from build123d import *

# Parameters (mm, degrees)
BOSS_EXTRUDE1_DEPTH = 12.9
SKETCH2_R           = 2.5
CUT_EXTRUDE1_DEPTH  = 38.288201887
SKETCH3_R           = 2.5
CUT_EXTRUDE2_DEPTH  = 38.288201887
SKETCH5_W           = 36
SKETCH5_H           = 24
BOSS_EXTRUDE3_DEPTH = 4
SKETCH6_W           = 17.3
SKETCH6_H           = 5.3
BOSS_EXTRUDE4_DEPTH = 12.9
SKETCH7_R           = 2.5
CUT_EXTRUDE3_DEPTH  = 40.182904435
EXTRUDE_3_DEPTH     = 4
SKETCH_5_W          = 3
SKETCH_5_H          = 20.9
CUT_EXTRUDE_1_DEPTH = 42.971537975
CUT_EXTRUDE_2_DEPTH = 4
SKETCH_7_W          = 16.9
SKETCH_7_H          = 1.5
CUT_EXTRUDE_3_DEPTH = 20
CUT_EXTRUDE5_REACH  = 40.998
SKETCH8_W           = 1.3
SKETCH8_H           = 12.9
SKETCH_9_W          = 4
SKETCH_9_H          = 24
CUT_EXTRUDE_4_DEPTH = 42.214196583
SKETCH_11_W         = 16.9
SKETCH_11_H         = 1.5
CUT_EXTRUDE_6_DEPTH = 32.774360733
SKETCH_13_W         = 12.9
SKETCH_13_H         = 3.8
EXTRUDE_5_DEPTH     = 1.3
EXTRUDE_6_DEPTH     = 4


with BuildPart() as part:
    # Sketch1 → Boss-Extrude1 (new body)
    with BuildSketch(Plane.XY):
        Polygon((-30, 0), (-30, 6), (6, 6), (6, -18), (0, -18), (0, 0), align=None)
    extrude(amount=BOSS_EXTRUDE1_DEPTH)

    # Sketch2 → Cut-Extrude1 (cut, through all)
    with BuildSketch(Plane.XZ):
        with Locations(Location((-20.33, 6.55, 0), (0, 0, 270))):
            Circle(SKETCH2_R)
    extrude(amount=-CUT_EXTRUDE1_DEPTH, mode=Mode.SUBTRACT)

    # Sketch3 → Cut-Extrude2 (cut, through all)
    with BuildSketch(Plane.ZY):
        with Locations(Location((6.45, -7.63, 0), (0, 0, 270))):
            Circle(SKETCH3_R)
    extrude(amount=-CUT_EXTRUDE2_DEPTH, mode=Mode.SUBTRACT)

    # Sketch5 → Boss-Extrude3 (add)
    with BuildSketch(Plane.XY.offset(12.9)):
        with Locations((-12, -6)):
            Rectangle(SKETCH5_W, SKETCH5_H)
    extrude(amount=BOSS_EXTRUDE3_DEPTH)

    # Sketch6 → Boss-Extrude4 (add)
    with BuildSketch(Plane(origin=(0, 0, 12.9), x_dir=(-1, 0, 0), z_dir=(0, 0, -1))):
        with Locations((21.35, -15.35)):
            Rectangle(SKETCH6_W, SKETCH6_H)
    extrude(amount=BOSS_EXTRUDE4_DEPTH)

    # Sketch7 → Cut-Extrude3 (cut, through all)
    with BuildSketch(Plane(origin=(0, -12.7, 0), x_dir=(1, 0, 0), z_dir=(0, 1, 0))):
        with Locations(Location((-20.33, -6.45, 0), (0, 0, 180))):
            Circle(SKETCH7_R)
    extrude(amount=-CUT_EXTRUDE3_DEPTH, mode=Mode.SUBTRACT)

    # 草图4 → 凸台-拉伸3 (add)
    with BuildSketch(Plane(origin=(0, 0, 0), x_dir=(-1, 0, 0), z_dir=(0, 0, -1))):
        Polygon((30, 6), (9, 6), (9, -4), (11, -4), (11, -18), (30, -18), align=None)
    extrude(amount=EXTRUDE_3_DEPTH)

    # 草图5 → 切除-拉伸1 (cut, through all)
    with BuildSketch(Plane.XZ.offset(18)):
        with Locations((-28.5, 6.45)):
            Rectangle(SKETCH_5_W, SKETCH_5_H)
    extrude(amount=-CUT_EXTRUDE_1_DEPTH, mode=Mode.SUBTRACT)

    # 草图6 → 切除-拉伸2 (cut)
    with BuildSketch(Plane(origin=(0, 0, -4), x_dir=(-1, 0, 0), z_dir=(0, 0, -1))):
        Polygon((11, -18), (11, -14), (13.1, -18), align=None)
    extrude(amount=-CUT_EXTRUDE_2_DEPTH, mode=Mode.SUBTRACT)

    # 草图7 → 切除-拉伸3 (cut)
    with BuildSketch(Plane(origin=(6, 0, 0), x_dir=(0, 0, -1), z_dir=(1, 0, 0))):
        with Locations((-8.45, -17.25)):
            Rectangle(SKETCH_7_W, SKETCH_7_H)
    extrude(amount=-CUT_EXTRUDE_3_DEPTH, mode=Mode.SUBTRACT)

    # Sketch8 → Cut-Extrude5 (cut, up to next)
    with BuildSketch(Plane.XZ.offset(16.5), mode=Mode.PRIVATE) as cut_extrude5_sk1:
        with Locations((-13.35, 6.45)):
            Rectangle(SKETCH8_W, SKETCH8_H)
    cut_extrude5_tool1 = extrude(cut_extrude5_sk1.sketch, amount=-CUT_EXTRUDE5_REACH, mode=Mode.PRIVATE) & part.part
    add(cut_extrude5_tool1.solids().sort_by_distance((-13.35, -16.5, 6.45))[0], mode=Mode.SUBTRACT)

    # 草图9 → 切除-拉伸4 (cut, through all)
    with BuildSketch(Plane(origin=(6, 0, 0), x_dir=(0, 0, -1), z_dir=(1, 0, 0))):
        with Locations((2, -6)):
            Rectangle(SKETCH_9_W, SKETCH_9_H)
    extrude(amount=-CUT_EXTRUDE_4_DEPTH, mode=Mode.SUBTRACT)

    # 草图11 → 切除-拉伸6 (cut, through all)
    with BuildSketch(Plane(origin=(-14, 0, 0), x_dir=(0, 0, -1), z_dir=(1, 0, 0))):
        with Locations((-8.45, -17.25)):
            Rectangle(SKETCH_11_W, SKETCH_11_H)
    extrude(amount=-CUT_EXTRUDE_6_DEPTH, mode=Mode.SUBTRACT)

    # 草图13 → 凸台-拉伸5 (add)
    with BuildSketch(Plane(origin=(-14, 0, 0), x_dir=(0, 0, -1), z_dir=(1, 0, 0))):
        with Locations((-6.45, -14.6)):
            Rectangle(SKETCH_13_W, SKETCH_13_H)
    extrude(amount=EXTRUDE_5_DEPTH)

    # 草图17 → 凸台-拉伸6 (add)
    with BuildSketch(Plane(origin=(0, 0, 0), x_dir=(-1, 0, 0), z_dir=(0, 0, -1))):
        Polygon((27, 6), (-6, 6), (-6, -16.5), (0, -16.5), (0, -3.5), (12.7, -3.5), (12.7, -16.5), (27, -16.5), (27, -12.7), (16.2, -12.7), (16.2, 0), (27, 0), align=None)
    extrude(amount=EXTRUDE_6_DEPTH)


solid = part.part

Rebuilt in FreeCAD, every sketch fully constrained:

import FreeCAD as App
import Part
import Sketcher
Q = App.Units.Quantity

doc = App.newDocument("Part")
body = doc.addObject("PartDesign::Body", "Body")

# Sketch on XY plane
sketch1 = body.newObject("Sketcher::SketchObject", "Sketch")
sketch1.AttachmentSupport = (doc.getObject("XY_Plane"), [""])
sketch1.MapMode = "FlatFace"
sketch1.addGeometry(Part.LineSegment(App.Vector(-30, 6, 0), App.Vector(-30, 0, 0)), False)
sketch1.addGeometry(Part.LineSegment(App.Vector(-30, 0, 0), App.Vector(0, 0, 0)), False)
sketch1.addGeometry(Part.LineSegment(App.Vector(0, 0, 0), App.Vector(0, -18, 0)), False)
sketch1.addGeometry(Part.LineSegment(App.Vector(0, -18, 0), App.Vector(6, -18, 0)), False)
sketch1.addGeometry(Part.LineSegment(App.Vector(6, -18, 0), App.Vector(6, 6, 0)), False)
sketch1.addGeometry(Part.LineSegment(App.Vector(6, 6, 0), App.Vector(-30, 6, 0)), False)
sketch1.addConstraint(Sketcher.Constraint("Coincident", 0, 2, 1, 1))
sketch1.addConstraint(Sketcher.Constraint("Coincident", 1, 2, 2, 1))
sketch1.addConstraint(Sketcher.Constraint("Coincident", 2, 2, 3, 1))
sketch1.addConstraint(Sketcher.Constraint("Coincident", 3, 2, 4, 1))
sketch1.addConstraint(Sketcher.Constraint("Coincident", 4, 2, 5, 1))
sketch1.addConstraint(Sketcher.Constraint("Coincident", 5, 2, 0, 1))
sketch1.addConstraint(Sketcher.Constraint("Vertical", 0))
sketch1.addConstraint(Sketcher.Constraint("Horizontal", 1))
sketch1.addConstraint(Sketcher.Constraint("Vertical", 2))
sketch1.addConstraint(Sketcher.Constraint("Horizontal", 3))
sketch1.addConstraint(Sketcher.Constraint("Vertical", 4))
sketch1.addConstraint(Sketcher.Constraint("Horizontal", 5))
sketch1.addConstraint(Sketcher.Constraint("Coincident", 1, 2, -1, 1))
sketch1.addConstraint(Sketcher.Constraint("Equal", 3, 0))
sketch1.addConstraint(Sketcher.Constraint("DistanceX", 1, 1, 1, 2, Q("30 mm")))
sketch1.addConstraint(Sketcher.Constraint("DistanceX", 3, 1, 3, 2, Q("6 mm")))
sketch1.addConstraint(Sketcher.Constraint("DistanceY", 2, 2, 2, 1, Q("18 mm")))
pad1 = body.newObject("PartDesign::Pad", "Pad")
pad1.Profile = sketch1
pad1.Length = 12.9

# Sketch on XZ plane
sketch2 = body.newObject("Sketcher::SketchObject", "Sketch001")
sketch2.AttachmentSupport = (doc.getObject("XZ_Plane"), [""])
sketch2.MapMode = "FlatFace"
sketch2.addGeometry(Part.Circle(App.Vector(-20.33, 6.55, 0), App.Vector(0, 0, 1), 2.5), False)
sketch2.addConstraint(Sketcher.Constraint("Diameter", 0, Q("5 mm")))
sketch2.addConstraint(Sketcher.Constraint("DistanceX", 0, 3, -1, 1, Q("20.33 mm")))
sketch2.addConstraint(Sketcher.Constraint("DistanceY", -1, 1, 0, 3, Q("6.55 mm")))
pocket1 = body.newObject("PartDesign::Pocket", "Pocket")
pocket1.Profile = sketch2
pocket1.Type = "ThroughAll"

# Sketch on YZ plane
sketch3 = body.newObject("Sketcher::SketchObject", "Sketch002")
sketch3.AttachmentSupport = (doc.getObject("YZ_Plane"), [""])
sketch3.MapMode = "FlatFace"
sketch3.addGeometry(Part.Circle(App.Vector(-7.63, 6.45, 0), App.Vector(0, 0, 1), 2.5), False)
sketch3.addConstraint(Sketcher.Constraint("Diameter", 0, Q("5 mm")))
sketch3.addConstraint(Sketcher.Constraint("DistanceX", 0, 3, -1, 1, Q("7.63 mm")))
sketch3.addConstraint(Sketcher.Constraint("DistanceY", -1, 1, 0, 3, Q("6.45 mm")))
pocket2 = body.newObject("PartDesign::Pocket", "Pocket001")
pocket2.Profile = sketch3
pocket2.Type = "ThroughAll"
pocket2.Reversed = True

# Sketch on XY plane
sketch4 = body.newObject("Sketcher::SketchObject", "Sketch003")
sketch4.AttachmentSupport = (doc.getObject("XY_Plane"), [""])
sketch4.MapMode = "FlatFace"
sketch4.AttachmentOffset = App.Placement(App.Vector(0, 0, 12.9), App.Rotation())
sketch4.addGeometry(Part.LineSegment(App.Vector(-30, 6, 0), App.Vector(-30, -18, 0)), False)
sketch4.addGeometry(Part.LineSegment(App.Vector(-30, -18, 0), App.Vector(6, -18, 0)), False)
sketch4.addGeometry(Part.LineSegment(App.Vector(6, -18, 0), App.Vector(6, 6, 0)), False)
sketch4.addGeometry(Part.LineSegment(App.Vector(6, 6, 0), App.Vector(-30, 6, 0)), False)
sketch4.addConstraint(Sketcher.Constraint("Coincident", 0, 2, 1, 1))
sketch4.addConstraint(Sketcher.Constraint("Coincident", 1, 2, 2, 1))
sketch4.addConstraint(Sketcher.Constraint("Coincident", 2, 2, 3, 1))
sketch4.addConstraint(Sketcher.Constraint("Coincident", 3, 2, 0, 1))
sketch4.addConstraint(Sketcher.Constraint("Vertical", 0))
sketch4.addConstraint(Sketcher.Constraint("Horizontal", 1))
sketch4.addConstraint(Sketcher.Constraint("Vertical", 2))
sketch4.addConstraint(Sketcher.Constraint("Horizontal", 3))
sketch4.addConstraint(Sketcher.Constraint("DistanceX", 1, 1, 1, 2, Q("36 mm")))
sketch4.addConstraint(Sketcher.Constraint("DistanceY", 0, 2, 0, 1, Q("24 mm")))
sketch4.addConstraint(Sketcher.Constraint("DistanceX", 0, 2, -1, 1, Q("30 mm")))
sketch4.addConstraint(Sketcher.Constraint("DistanceY", 0, 2, -1, 1, Q("18 mm")))
pad2 = body.newObject("PartDesign::Pad", "Pad001")
pad2.Profile = sketch4
pad2.Length = 4

# Sketch on XY plane
sketch5 = body.newObject("Sketcher::SketchObject", "Sketch004")
sketch5.AttachmentSupport = (doc.getObject("XY_Plane"), [""])
sketch5.MapMode = "FlatFace"
sketch5.AttachmentOffset = App.Placement(App.Vector(0, 0, 12.9), App.Rotation())
sketch5.addGeometry(Part.LineSegment(App.Vector(-12.7, -12.7, 0), App.Vector(-12.7, -18, 0)), False)
sketch5.addGeometry(Part.LineSegment(App.Vector(-12.7, -18, 0), App.Vector(-30, -18, 0)), False)
sketch5.addGeometry(Part.LineSegment(App.Vector(-30, -18, 0), App.Vector(-30, -12.7, 0)), False)
sketch5.addGeometry(Part.LineSegment(App.Vector(-30, -12.7, 0), App.Vector(-12.7, -12.7, 0)), False)
sketch5.addConstraint(Sketcher.Constraint("Coincident", 0, 2, 1, 1))
sketch5.addConstraint(Sketcher.Constraint("Coincident", 1, 2, 2, 1))
sketch5.addConstraint(Sketcher.Constraint("Coincident", 2, 2, 3, 1))
sketch5.addConstraint(Sketcher.Constraint("Coincident", 3, 2, 0, 1))
sketch5.addConstraint(Sketcher.Constraint("Vertical", 0))
sketch5.addConstraint(Sketcher.Constraint("Horizontal", 1))
sketch5.addConstraint(Sketcher.Constraint("Vertical", 2))
sketch5.addConstraint(Sketcher.Constraint("Horizontal", 3))
sketch5.addConstraint(Sketcher.Constraint("DistanceX", 1, 2, 1, 1, Q("17.3 mm")))
sketch5.addConstraint(Sketcher.Constraint("DistanceY", 0, 2, 0, 1, Q("5.3 mm")))
sketch5.addConstraint(Sketcher.Constraint("DistanceY", 0, 2, -1, 1, Q("18 mm")))
sketch5.addConstraint(Sketcher.Constraint("DistanceX", 1, 2, -1, 1, Q("30 mm")))
pad3 = body.newObject("PartDesign::Pad", "Pad002")
pad3.Profile = sketch5
pad3.Length = 12.9
pad3.Reversed = True

# Sketch on XZ plane
sketch6 = body.newObject("Sketcher::SketchObject", "Sketch005")
sketch6.AttachmentSupport = (doc.getObject("XZ_Plane"), [""])
sketch6.MapMode = "FlatFace"
sketch6.AttachmentOffset = App.Placement(App.Vector(0, 0, 12.7), App.Rotation())
sketch6.addGeometry(Part.Circle(App.Vector(-20.33, 6.45, 0), App.Vector(0, 0, 1), 2.5), False)
sketch6.addConstraint(Sketcher.Constraint("Diameter", 0, Q("5 mm")))
sketch6.addConstraint(Sketcher.Constraint("DistanceX", 0, 3, -1, 1, Q("20.33 mm")))
sketch6.addConstraint(Sketcher.Constraint("DistanceY", -1, 1, 0, 3, Q("6.45 mm")))
pocket3 = body.newObject("PartDesign::Pocket", "Pocket002")
pocket3.Profile = sketch6
pocket3.Type = "ThroughAll"
pocket3.Reversed = True

# Sketch on XY plane
sketch7 = body.newObject("Sketcher::SketchObject", "Sketch006")
sketch7.AttachmentSupport = (doc.getObject("XY_Plane"), [""])
sketch7.MapMode = "FlatFace"
sketch7.addGeometry(Part.LineSegment(App.Vector(-30, 6, 0), App.Vector(-9, 6, 0)), False)
sketch7.addGeometry(Part.LineSegment(App.Vector(-9, 6, 0), App.Vector(-9, -4, 0)), False)
sketch7.addGeometry(Part.LineSegment(App.Vector(-9, -4, 0), App.Vector(-11, -4, 0)), False)
sketch7.addGeometry(Part.LineSegment(App.Vector(-11, -4, 0), App.Vector(-11, -18, 0)), False)
sketch7.addGeometry(Part.LineSegment(App.Vector(-11, -18, 0), App.Vector(-30, -18, 0)), False)
sketch7.addGeometry(Part.LineSegment(App.Vector(-30, -18, 0), App.Vector(-30, 6, 0)), False)
sketch7.addConstraint(Sketcher.Constraint("Coincident", 0, 2, 1, 1))
sketch7.addConstraint(Sketcher.Constraint("Coincident", 1, 2, 2, 1))
sketch7.addConstraint(Sketcher.Constraint("Coincident", 2, 2, 3, 1))
sketch7.addConstraint(Sketcher.Constraint("Coincident", 3, 2, 4, 1))
sketch7.addConstraint(Sketcher.Constraint("Coincident", 4, 2, 5, 1))
sketch7.addConstraint(Sketcher.Constraint("Coincident", 5, 2, 0, 1))
sketch7.addConstraint(Sketcher.Constraint("Horizontal", 0))
sketch7.addConstraint(Sketcher.Constraint("Vertical", 1))
sketch7.addConstraint(Sketcher.Constraint("Horizontal", 2))
sketch7.addConstraint(Sketcher.Constraint("Vertical", 3))
sketch7.addConstraint(Sketcher.Constraint("Horizontal", 4))
sketch7.addConstraint(Sketcher.Constraint("Vertical", 5))
sketch7.addConstraint(Sketcher.Constraint("DistanceX", 0, 1, 0, 2, Q("21 mm")))
sketch7.addConstraint(Sketcher.Constraint("DistanceX", 2, 2, 2, 1, Q("2 mm")))
sketch7.addConstraint(Sketcher.Constraint("DistanceY", 1, 2, 1, 1, Q("10 mm")))
sketch7.addConstraint(Sketcher.Constraint("DistanceY", 3, 2, 3, 1, Q("14 mm")))
sketch7.addConstraint(Sketcher.Constraint("DistanceX", 0, 2, -1, 1, Q("9 mm")))
sketch7.addConstraint(Sketcher.Constraint("DistanceY", -1, 1, 0, 2, Q("6 mm")))
pad4 = body.newObject("PartDesign::Pad", "Pad003")
pad4.Profile = sketch7
pad4.Length = 4
pad4.Reversed = True

# Sketch on XZ plane
sketch8 = body.newObject("Sketcher::SketchObject", "Sketch007")
sketch8.AttachmentSupport = (doc.getObject("XZ_Plane"), [""])
sketch8.MapMode = "FlatFace"
sketch8.AttachmentOffset = App.Placement(App.Vector(0, 0, 18), App.Rotation())
sketch8.addGeometry(Part.LineSegment(App.Vector(-30, 16.9, 0), App.Vector(-30, -4, 0)), False)
sketch8.addGeometry(Part.LineSegment(App.Vector(-30, -4, 0), App.Vector(-27, -4, 0)), False)
sketch8.addGeometry(Part.LineSegment(App.Vector(-27, -4, 0), App.Vector(-27, 16.9, 0)), False)
sketch8.addGeometry(Part.LineSegment(App.Vector(-27, 16.9, 0), App.Vector(-30, 16.9, 0)), False)
sketch8.addConstraint(Sketcher.Constraint("Coincident", 0, 2, 1, 1))
sketch8.addConstraint(Sketcher.Constraint("Coincident", 1, 2, 2, 1))
sketch8.addConstraint(Sketcher.Constraint("Coincident", 2, 2, 3, 1))
sketch8.addConstraint(Sketcher.Constraint("Coincident", 3, 2, 0, 1))
sketch8.addConstraint(Sketcher.Constraint("Vertical", 0))
sketch8.addConstraint(Sketcher.Constraint("Horizontal", 1))
sketch8.addConstraint(Sketcher.Constraint("Vertical", 2))
sketch8.addConstraint(Sketcher.Constraint("Horizontal", 3))
sketch8.addConstraint(Sketcher.Constraint("DistanceX", 1, 1, 1, 2, Q("3 mm")))
sketch8.addConstraint(Sketcher.Constraint("DistanceY", 0, 2, 0, 1, Q("20.9 mm")))
sketch8.addConstraint(Sketcher.Constraint("DistanceX", 0, 2, -1, 1, Q("30 mm")))
sketch8.addConstraint(Sketcher.Constraint("DistanceY", 0, 2, -1, 1, Q("4 mm")))
pocket4 = body.newObject("PartDesign::Pocket", "Pocket003")
pocket4.Profile = sketch8
pocket4.Type = "ThroughAll"

# Sketch on XY plane
sketch9 = body.newObject("Sketcher::SketchObject", "Sketch008")
sketch9.AttachmentSupport = (doc.getObject("XY_Plane"), [""])
sketch9.MapMode = "FlatFace"
sketch9.AttachmentOffset = App.Placement(App.Vector(0, 0, -4), App.Rotation())
sketch9.addGeometry(Part.LineSegment(App.Vector(-11, -14, 0), App.Vector(-11, -18, 0)), False)
sketch9.addGeometry(Part.LineSegment(App.Vector(-11, -18, 0), App.Vector(-13.1, -18, 0)), False)
sketch9.addGeometry(Part.LineSegment(App.Vector(-13.1, -18, 0), App.Vector(-11, -14, 0)), False)
sketch9.addConstraint(Sketcher.Constraint("Coincident", 0, 2, 1, 1))
sketch9.addConstraint(Sketcher.Constraint("Coincident", 1, 2, 2, 1))
sketch9.addConstraint(Sketcher.Constraint("Coincident", 2, 2, 0, 1))
sketch9.addConstraint(Sketcher.Constraint("Vertical", 0))
sketch9.addConstraint(Sketcher.Constraint("Horizontal", 1))
sketch9.addConstraint(Sketcher.Constraint("DistanceY", 0, 2, 0, 1, Q("4 mm")))
sketch9.addConstraint(Sketcher.Constraint("DistanceX", 1, 2, 1, 1, Q("2.1 mm")))
sketch9.addConstraint(Sketcher.Constraint("DistanceX", 0, 2, -1, 1, Q("11 mm")))
sketch9.addConstraint(Sketcher.Constraint("DistanceY", 0, 2, -1, 1, Q("18 mm")))
pocket5 = body.newObject("PartDesign::Pocket", "Pocket004")
pocket5.Profile = sketch9
pocket5.Length = 4
pocket5.Reversed = True

# Sketch on YZ plane
sketch10 = body.newObject("Sketcher::SketchObject", "Sketch009")
sketch10.AttachmentSupport = (doc.getObject("YZ_Plane"), [""])
sketch10.MapMode = "FlatFace"
sketch10.AttachmentOffset = App.Placement(App.Vector(0, 0, 6), App.Rotation())
sketch10.addGeometry(Part.LineSegment(App.Vector(-16.5, 16.9, 0), App.Vector(-18, 16.9, 0)), False)
sketch10.addGeometry(Part.LineSegment(App.Vector(-18, 16.9, 0), App.Vector(-18, 0, 0)), False)
sketch10.addGeometry(Part.LineSegment(App.Vector(-18, 0, 0), App.Vector(-16.5, 0, 0)), False)
sketch10.addGeometry(Part.LineSegment(App.Vector(-16.5, 0, 0), App.Vector(-16.5, 16.9, 0)), False)
sketch10.addConstraint(Sketcher.Constraint("Coincident", 0, 2, 1, 1))
sketch10.addConstraint(Sketcher.Constraint("Coincident", 1, 2, 2, 1))
sketch10.addConstraint(Sketcher.Constraint("Coincident", 2, 2, 3, 1))
sketch10.addConstraint(Sketcher.Constraint("Coincident", 3, 2, 0, 1))
sketch10.addConstraint(Sketcher.Constraint("Horizontal", 0))
sketch10.addConstraint(Sketcher.Constraint("Vertical", 1))
sketch10.addConstraint(Sketcher.Constraint("Horizontal", 2))
sketch10.addConstraint(Sketcher.Constraint("Vertical", 3))
sketch10.addConstraint(Sketcher.Constraint("PointOnObject", 1, 2, -1))
sketch10.addConstraint(Sketcher.Constraint("DistanceX", 0, 2, 0, 1, Q("1.5 mm")))
sketch10.addConstraint(Sketcher.Constraint("DistanceY", 1, 2, 1, 1, Q("16.9 mm")))
sketch10.addConstraint(Sketcher.Constraint("DistanceX", 0, 2, -1, 1, Q("18 mm")))
pocket6 = body.newObject("PartDesign::Pocket", "Pocket005")
pocket6.Profile = sketch10
pocket6.Length = 20

# Sketch on XZ plane
sketch11 = body.newObject("Sketcher::SketchObject", "Sketch010")
sketch11.AttachmentSupport = (doc.getObject("XZ_Plane"), [""])
sketch11.MapMode = "FlatFace"
sketch11.AttachmentOffset = App.Placement(App.Vector(0, 0, 16.5), App.Rotation())
sketch11.addGeometry(Part.LineSegment(App.Vector(-14, 12.9, 0), App.Vector(-14, 0, 0)), False)
sketch11.addGeometry(Part.LineSegment(App.Vector(-14, 0, 0), App.Vector(-12.7, 0, 0)), False)
sketch11.addGeometry(Part.LineSegment(App.Vector(-12.7, 0, 0), App.Vector(-12.7, 12.9, 0)), False)
sketch11.addGeometry(Part.LineSegment(App.Vector(-12.7, 12.9, 0), App.Vector(-14, 12.9, 0)), False)
sketch11.addConstraint(Sketcher.Constraint("Coincident", 0, 2, 1, 1))
sketch11.addConstraint(Sketcher.Constraint("Coincident", 1, 2, 2, 1))
sketch11.addConstraint(Sketcher.Constraint("Coincident", 2, 2, 3, 1))
sketch11.addConstraint(Sketcher.Constraint("Coincident", 3, 2, 0, 1))
sketch11.addConstraint(Sketcher.Constraint("Vertical", 0))
sketch11.addConstraint(Sketcher.Constraint("Horizontal", 1))
sketch11.addConstraint(Sketcher.Constraint("Vertical", 2))
sketch11.addConstraint(Sketcher.Constraint("Horizontal", 3))
sketch11.addConstraint(Sketcher.Constraint("PointOnObject", 0, 2, -1))
sketch11.addConstraint(Sketcher.Constraint("DistanceX", 1, 1, 1, 2, Q("1.3 mm")))
sketch11.addConstraint(Sketcher.Constraint("DistanceY", 0, 2, 0, 1, Q("12.9 mm")))
sketch11.addConstraint(Sketcher.Constraint("DistanceX", 0, 2, -1, 1, Q("14 mm")))
pocket7 = body.newObject("PartDesign::Pocket", "Pocket006")
pocket7.Profile = sketch11
pocket7.Type = "UpToFirst"

# Sketch on YZ plane
sketch12 = body.newObject("Sketcher::SketchObject", "Sketch011")
sketch12.AttachmentSupport = (doc.getObject("YZ_Plane"), [""])
sketch12.MapMode = "FlatFace"
sketch12.AttachmentOffset = App.Placement(App.Vector(0, 0, 6), App.Rotation())
sketch12.addGeometry(Part.LineSegment(App.Vector(6, 0, 0), App.Vector(-18, 0, 0)), False)
sketch12.addGeometry(Part.LineSegment(App.Vector(-18, 0, 0), App.Vector(-18, -4, 0)), False)
sketch12.addGeometry(Part.LineSegment(App.Vector(-18, -4, 0), App.Vector(6, -4, 0)), False)
sketch12.addGeometry(Part.LineSegment(App.Vector(6, -4, 0), App.Vector(6, 0, 0)), False)
sketch12.addConstraint(Sketcher.Constraint("Coincident", 0, 2, 1, 1))
sketch12.addConstraint(Sketcher.Constraint("Coincident", 1, 2, 2, 1))
sketch12.addConstraint(Sketcher.Constraint("Coincident", 2, 2, 3, 1))
sketch12.addConstraint(Sketcher.Constraint("Coincident", 3, 2, 0, 1))
sketch12.addConstraint(Sketcher.Constraint("Horizontal", 0))
sketch12.addConstraint(Sketcher.Constraint("Vertical", 1))
sketch12.addConstraint(Sketcher.Constraint("Horizontal", 2))
sketch12.addConstraint(Sketcher.Constraint("Vertical", 3))
sketch12.addConstraint(Sketcher.Constraint("PointOnObject", 0, 2, -1))
sketch12.addConstraint(Sketcher.Constraint("DistanceX", 0, 2, 0, 1, Q("24 mm")))
sketch12.addConstraint(Sketcher.Constraint("DistanceY", 1, 2, 1, 1, Q("4 mm")))
sketch12.addConstraint(Sketcher.Constraint("DistanceX", 0, 2, -1, 1, Q("18 mm")))
pocket8 = body.newObject("PartDesign::Pocket", "Pocket007")
pocket8.Profile = sketch12
pocket8.Type = "ThroughAll"

# Sketch on YZ plane
sketch13 = body.newObject("Sketcher::SketchObject", "Sketch012")
sketch13.AttachmentSupport = (doc.getObject("YZ_Plane"), [""])
sketch13.MapMode = "FlatFace"
sketch13.AttachmentOffset = App.Placement(App.Vector(0, 0, -14), App.Rotation())
sketch13.addGeometry(Part.LineSegment(App.Vector(-16.5, 16.9, 0), App.Vector(-18, 16.9, 0)), False)
sketch13.addGeometry(Part.LineSegment(App.Vector(-18, 16.9, 0), App.Vector(-18, 0, 0)), False)
sketch13.addGeometry(Part.LineSegment(App.Vector(-18, 0, 0), App.Vector(-16.5, 0, 0)), False)
sketch13.addGeometry(Part.LineSegment(App.Vector(-16.5, 0, 0), App.Vector(-16.5, 16.9, 0)), False)
sketch13.addConstraint(Sketcher.Constraint("Coincident", 0, 2, 1, 1))
sketch13.addConstraint(Sketcher.Constraint("Coincident", 1, 2, 2, 1))
sketch13.addConstraint(Sketcher.Constraint("Coincident", 2, 2, 3, 1))
sketch13.addConstraint(Sketcher.Constraint("Coincident", 3, 2, 0, 1))
sketch13.addConstraint(Sketcher.Constraint("Horizontal", 0))
sketch13.addConstraint(Sketcher.Constraint("Vertical", 1))
sketch13.addConstraint(Sketcher.Constraint("Horizontal", 2))
sketch13.addConstraint(Sketcher.Constraint("Vertical", 3))
sketch13.addConstraint(Sketcher.Constraint("PointOnObject", 1, 2, -1))
sketch13.addConstraint(Sketcher.Constraint("DistanceX", 0, 2, 0, 1, Q("1.5 mm")))
sketch13.addConstraint(Sketcher.Constraint("DistanceY", 1, 2, 1, 1, Q("16.9 mm")))
sketch13.addConstraint(Sketcher.Constraint("DistanceX", 0, 2, -1, 1, Q("18 mm")))
pocket9 = body.newObject("PartDesign::Pocket", "Pocket008")
pocket9.Profile = sketch13
pocket9.Type = "ThroughAll"

# Sketch on YZ plane
sketch14 = body.newObject("Sketcher::SketchObject", "Sketch013")
sketch14.AttachmentSupport = (doc.getObject("YZ_Plane"), [""])
sketch14.MapMode = "FlatFace"
sketch14.AttachmentOffset = App.Placement(App.Vector(0, 0, -14), App.Rotation())
sketch14.addGeometry(Part.LineSegment(App.Vector(-12.7, 12.9, 0), App.Vector(-16.5, 12.9, 0)), False)
sketch14.addGeometry(Part.LineSegment(App.Vector(-16.5, 12.9, 0), App.Vector(-16.5, 0, 0)), False)
sketch14.addGeometry(Part.LineSegment(App.Vector(-16.5, 0, 0), App.Vector(-12.7, 0, 0)), False)
sketch14.addGeometry(Part.LineSegment(App.Vector(-12.7, 0, 0), App.Vector(-12.7, 12.9, 0)), False)
sketch14.addConstraint(Sketcher.Constraint("Coincident", 0, 2, 1, 1))
sketch14.addConstraint(Sketcher.Constraint("Coincident", 1, 2, 2, 1))
sketch14.addConstraint(Sketcher.Constraint("Coincident", 2, 2, 3, 1))
sketch14.addConstraint(Sketcher.Constraint("Coincident", 3, 2, 0, 1))
sketch14.addConstraint(Sketcher.Constraint("Horizontal", 0))
sketch14.addConstraint(Sketcher.Constraint("Vertical", 1))
sketch14.addConstraint(Sketcher.Constraint("Horizontal", 2))
sketch14.addConstraint(Sketcher.Constraint("Vertical", 3))
sketch14.addConstraint(Sketcher.Constraint("PointOnObject", 1, 2, -1))
sketch14.addConstraint(Sketcher.Constraint("DistanceX", 0, 2, 0, 1, Q("3.8 mm")))
sketch14.addConstraint(Sketcher.Constraint("DistanceY", 1, 2, 1, 1, Q("12.9 mm")))
sketch14.addConstraint(Sketcher.Constraint("DistanceX", 0, 2, -1, 1, Q("16.5 mm")))
pad5 = body.newObject("PartDesign::Pad", "Pad004")
pad5.Profile = sketch14
pad5.Length = 1.3

# Sketch on XY plane
sketch15 = body.newObject("Sketcher::SketchObject", "Sketch014")
sketch15.AttachmentSupport = (doc.getObject("XY_Plane"), [""])
sketch15.MapMode = "FlatFace"
sketch15.addGeometry(Part.LineSegment(App.Vector(-27, 6, 0), App.Vector(6, 6, 0)), False)
sketch15.addGeometry(Part.LineSegment(App.Vector(6, 6, 0), App.Vector(6, -16.5, 0)), False)
sketch15.addGeometry(Part.LineSegment(App.Vector(6, -16.5, 0), App.Vector(0, -16.5, 0)), False)
sketch15.addGeometry(Part.LineSegment(App.Vector(0, -16.5, 0), App.Vector(0, -3.5, 0)), False)
sketch15.addGeometry(Part.LineSegment(App.Vector(0, -3.5, 0), App.Vector(-12.7, -3.5, 0)), False)
sketch15.addGeometry(Part.LineSegment(App.Vector(-12.7, -3.5, 0), App.Vector(-12.7, -16.5, 0)), False)
sketch15.addGeometry(Part.LineSegment(App.Vector(-12.7, -16.5, 0), App.Vector(-27, -16.5, 0)), False)
sketch15.addGeometry(Part.LineSegment(App.Vector(-27, -16.5, 0), App.Vector(-27, -12.7, 0)), False)
sketch15.addGeometry(Part.LineSegment(App.Vector(-27, -12.7, 0), App.Vector(-16.2, -12.7, 0)), False)
sketch15.addGeometry(Part.LineSegment(App.Vector(-16.2, -12.7, 0), App.Vector(-16.2, 0, 0)), False)
sketch15.addGeometry(Part.LineSegment(App.Vector(-16.2, 0, 0), App.Vector(-27, 0, 0)), False)
sketch15.addGeometry(Part.LineSegment(App.Vector(-27, 0, 0), App.Vector(-27, 6, 0)), False)
sketch15.addConstraint(Sketcher.Constraint("Coincident", 0, 2, 1, 1))
sketch15.addConstraint(Sketcher.Constraint("Coincident", 1, 2, 2, 1))
sketch15.addConstraint(Sketcher.Constraint("Coincident", 2, 2, 3, 1))
sketch15.addConstraint(Sketcher.Constraint("Coincident", 3, 2, 4, 1))
sketch15.addConstraint(Sketcher.Constraint("Coincident", 4, 2, 5, 1))
sketch15.addConstraint(Sketcher.Constraint("Coincident", 5, 2, 6, 1))
sketch15.addConstraint(Sketcher.Constraint("Coincident", 6, 2, 7, 1))
sketch15.addConstraint(Sketcher.Constraint("Coincident", 7, 2, 8, 1))
sketch15.addConstraint(Sketcher.Constraint("Coincident", 8, 2, 9, 1))
sketch15.addConstraint(Sketcher.Constraint("Coincident", 9, 2, 10, 1))
sketch15.addConstraint(Sketcher.Constraint("Coincident", 10, 2, 11, 1))
sketch15.addConstraint(Sketcher.Constraint("Coincident", 11, 2, 0, 1))
sketch15.addConstraint(Sketcher.Constraint("Horizontal", 0))
sketch15.addConstraint(Sketcher.Constraint("Vertical", 1))
sketch15.addConstraint(Sketcher.Constraint("Horizontal", 2))
sketch15.addConstraint(Sketcher.Constraint("Vertical", 3))
sketch15.addConstraint(Sketcher.Constraint("Horizontal", 4))
sketch15.addConstraint(Sketcher.Constraint("Vertical", 5))
sketch15.addConstraint(Sketcher.Constraint("Horizontal", 6))
sketch15.addConstraint(Sketcher.Constraint("Vertical", 7))
sketch15.addConstraint(Sketcher.Constraint("Horizontal", 8))
sketch15.addConstraint(Sketcher.Constraint("Vertical", 9))
sketch15.addConstraint(Sketcher.Constraint("Horizontal", 10))
sketch15.addConstraint(Sketcher.Constraint("Vertical", 11))
sketch15.addConstraint(Sketcher.Constraint("PointOnObject", 2, 2, -2))
sketch15.addConstraint(Sketcher.Constraint("PointOnObject", 9, 2, -1))
sketch15.addConstraint(Sketcher.Constraint("Horizontal", 2, 2, 5, 2))
sketch15.addConstraint(Sketcher.Constraint("Vertical", 7, 2, 10, 2))
sketch15.addConstraint(Sketcher.Constraint("Equal", 4, 9))
sketch15.addConstraint(Sketcher.Constraint("Equal", 2, 11))
sketch15.addConstraint(Sketcher.Constraint("DistanceX", 0, 1, 0, 2, Q("33 mm")))
sketch15.addConstraint(Sketcher.Constraint("DistanceX", 2, 2, 2, 1, Q("6 mm")))
sketch15.addConstraint(Sketcher.Constraint("DistanceY", 3, 1, 3, 2, Q("13 mm")))
sketch15.addConstraint(Sketcher.Constraint("DistanceX", 4, 2, 4, 1, Q("12.7 mm")))
sketch15.addConstraint(Sketcher.Constraint("DistanceX", 8, 1, 8, 2, Q("10.8 mm")))
sketch15.addConstraint(Sketcher.Constraint("DistanceY", 1, 2, 1, 1, Q("22.5 mm")))
pad6 = body.newObject("PartDesign::Pad", "Pad005")
pad6.Profile = sketch15
pad6.Length = 4
pad6.Reversed = True

doc.recompute()
